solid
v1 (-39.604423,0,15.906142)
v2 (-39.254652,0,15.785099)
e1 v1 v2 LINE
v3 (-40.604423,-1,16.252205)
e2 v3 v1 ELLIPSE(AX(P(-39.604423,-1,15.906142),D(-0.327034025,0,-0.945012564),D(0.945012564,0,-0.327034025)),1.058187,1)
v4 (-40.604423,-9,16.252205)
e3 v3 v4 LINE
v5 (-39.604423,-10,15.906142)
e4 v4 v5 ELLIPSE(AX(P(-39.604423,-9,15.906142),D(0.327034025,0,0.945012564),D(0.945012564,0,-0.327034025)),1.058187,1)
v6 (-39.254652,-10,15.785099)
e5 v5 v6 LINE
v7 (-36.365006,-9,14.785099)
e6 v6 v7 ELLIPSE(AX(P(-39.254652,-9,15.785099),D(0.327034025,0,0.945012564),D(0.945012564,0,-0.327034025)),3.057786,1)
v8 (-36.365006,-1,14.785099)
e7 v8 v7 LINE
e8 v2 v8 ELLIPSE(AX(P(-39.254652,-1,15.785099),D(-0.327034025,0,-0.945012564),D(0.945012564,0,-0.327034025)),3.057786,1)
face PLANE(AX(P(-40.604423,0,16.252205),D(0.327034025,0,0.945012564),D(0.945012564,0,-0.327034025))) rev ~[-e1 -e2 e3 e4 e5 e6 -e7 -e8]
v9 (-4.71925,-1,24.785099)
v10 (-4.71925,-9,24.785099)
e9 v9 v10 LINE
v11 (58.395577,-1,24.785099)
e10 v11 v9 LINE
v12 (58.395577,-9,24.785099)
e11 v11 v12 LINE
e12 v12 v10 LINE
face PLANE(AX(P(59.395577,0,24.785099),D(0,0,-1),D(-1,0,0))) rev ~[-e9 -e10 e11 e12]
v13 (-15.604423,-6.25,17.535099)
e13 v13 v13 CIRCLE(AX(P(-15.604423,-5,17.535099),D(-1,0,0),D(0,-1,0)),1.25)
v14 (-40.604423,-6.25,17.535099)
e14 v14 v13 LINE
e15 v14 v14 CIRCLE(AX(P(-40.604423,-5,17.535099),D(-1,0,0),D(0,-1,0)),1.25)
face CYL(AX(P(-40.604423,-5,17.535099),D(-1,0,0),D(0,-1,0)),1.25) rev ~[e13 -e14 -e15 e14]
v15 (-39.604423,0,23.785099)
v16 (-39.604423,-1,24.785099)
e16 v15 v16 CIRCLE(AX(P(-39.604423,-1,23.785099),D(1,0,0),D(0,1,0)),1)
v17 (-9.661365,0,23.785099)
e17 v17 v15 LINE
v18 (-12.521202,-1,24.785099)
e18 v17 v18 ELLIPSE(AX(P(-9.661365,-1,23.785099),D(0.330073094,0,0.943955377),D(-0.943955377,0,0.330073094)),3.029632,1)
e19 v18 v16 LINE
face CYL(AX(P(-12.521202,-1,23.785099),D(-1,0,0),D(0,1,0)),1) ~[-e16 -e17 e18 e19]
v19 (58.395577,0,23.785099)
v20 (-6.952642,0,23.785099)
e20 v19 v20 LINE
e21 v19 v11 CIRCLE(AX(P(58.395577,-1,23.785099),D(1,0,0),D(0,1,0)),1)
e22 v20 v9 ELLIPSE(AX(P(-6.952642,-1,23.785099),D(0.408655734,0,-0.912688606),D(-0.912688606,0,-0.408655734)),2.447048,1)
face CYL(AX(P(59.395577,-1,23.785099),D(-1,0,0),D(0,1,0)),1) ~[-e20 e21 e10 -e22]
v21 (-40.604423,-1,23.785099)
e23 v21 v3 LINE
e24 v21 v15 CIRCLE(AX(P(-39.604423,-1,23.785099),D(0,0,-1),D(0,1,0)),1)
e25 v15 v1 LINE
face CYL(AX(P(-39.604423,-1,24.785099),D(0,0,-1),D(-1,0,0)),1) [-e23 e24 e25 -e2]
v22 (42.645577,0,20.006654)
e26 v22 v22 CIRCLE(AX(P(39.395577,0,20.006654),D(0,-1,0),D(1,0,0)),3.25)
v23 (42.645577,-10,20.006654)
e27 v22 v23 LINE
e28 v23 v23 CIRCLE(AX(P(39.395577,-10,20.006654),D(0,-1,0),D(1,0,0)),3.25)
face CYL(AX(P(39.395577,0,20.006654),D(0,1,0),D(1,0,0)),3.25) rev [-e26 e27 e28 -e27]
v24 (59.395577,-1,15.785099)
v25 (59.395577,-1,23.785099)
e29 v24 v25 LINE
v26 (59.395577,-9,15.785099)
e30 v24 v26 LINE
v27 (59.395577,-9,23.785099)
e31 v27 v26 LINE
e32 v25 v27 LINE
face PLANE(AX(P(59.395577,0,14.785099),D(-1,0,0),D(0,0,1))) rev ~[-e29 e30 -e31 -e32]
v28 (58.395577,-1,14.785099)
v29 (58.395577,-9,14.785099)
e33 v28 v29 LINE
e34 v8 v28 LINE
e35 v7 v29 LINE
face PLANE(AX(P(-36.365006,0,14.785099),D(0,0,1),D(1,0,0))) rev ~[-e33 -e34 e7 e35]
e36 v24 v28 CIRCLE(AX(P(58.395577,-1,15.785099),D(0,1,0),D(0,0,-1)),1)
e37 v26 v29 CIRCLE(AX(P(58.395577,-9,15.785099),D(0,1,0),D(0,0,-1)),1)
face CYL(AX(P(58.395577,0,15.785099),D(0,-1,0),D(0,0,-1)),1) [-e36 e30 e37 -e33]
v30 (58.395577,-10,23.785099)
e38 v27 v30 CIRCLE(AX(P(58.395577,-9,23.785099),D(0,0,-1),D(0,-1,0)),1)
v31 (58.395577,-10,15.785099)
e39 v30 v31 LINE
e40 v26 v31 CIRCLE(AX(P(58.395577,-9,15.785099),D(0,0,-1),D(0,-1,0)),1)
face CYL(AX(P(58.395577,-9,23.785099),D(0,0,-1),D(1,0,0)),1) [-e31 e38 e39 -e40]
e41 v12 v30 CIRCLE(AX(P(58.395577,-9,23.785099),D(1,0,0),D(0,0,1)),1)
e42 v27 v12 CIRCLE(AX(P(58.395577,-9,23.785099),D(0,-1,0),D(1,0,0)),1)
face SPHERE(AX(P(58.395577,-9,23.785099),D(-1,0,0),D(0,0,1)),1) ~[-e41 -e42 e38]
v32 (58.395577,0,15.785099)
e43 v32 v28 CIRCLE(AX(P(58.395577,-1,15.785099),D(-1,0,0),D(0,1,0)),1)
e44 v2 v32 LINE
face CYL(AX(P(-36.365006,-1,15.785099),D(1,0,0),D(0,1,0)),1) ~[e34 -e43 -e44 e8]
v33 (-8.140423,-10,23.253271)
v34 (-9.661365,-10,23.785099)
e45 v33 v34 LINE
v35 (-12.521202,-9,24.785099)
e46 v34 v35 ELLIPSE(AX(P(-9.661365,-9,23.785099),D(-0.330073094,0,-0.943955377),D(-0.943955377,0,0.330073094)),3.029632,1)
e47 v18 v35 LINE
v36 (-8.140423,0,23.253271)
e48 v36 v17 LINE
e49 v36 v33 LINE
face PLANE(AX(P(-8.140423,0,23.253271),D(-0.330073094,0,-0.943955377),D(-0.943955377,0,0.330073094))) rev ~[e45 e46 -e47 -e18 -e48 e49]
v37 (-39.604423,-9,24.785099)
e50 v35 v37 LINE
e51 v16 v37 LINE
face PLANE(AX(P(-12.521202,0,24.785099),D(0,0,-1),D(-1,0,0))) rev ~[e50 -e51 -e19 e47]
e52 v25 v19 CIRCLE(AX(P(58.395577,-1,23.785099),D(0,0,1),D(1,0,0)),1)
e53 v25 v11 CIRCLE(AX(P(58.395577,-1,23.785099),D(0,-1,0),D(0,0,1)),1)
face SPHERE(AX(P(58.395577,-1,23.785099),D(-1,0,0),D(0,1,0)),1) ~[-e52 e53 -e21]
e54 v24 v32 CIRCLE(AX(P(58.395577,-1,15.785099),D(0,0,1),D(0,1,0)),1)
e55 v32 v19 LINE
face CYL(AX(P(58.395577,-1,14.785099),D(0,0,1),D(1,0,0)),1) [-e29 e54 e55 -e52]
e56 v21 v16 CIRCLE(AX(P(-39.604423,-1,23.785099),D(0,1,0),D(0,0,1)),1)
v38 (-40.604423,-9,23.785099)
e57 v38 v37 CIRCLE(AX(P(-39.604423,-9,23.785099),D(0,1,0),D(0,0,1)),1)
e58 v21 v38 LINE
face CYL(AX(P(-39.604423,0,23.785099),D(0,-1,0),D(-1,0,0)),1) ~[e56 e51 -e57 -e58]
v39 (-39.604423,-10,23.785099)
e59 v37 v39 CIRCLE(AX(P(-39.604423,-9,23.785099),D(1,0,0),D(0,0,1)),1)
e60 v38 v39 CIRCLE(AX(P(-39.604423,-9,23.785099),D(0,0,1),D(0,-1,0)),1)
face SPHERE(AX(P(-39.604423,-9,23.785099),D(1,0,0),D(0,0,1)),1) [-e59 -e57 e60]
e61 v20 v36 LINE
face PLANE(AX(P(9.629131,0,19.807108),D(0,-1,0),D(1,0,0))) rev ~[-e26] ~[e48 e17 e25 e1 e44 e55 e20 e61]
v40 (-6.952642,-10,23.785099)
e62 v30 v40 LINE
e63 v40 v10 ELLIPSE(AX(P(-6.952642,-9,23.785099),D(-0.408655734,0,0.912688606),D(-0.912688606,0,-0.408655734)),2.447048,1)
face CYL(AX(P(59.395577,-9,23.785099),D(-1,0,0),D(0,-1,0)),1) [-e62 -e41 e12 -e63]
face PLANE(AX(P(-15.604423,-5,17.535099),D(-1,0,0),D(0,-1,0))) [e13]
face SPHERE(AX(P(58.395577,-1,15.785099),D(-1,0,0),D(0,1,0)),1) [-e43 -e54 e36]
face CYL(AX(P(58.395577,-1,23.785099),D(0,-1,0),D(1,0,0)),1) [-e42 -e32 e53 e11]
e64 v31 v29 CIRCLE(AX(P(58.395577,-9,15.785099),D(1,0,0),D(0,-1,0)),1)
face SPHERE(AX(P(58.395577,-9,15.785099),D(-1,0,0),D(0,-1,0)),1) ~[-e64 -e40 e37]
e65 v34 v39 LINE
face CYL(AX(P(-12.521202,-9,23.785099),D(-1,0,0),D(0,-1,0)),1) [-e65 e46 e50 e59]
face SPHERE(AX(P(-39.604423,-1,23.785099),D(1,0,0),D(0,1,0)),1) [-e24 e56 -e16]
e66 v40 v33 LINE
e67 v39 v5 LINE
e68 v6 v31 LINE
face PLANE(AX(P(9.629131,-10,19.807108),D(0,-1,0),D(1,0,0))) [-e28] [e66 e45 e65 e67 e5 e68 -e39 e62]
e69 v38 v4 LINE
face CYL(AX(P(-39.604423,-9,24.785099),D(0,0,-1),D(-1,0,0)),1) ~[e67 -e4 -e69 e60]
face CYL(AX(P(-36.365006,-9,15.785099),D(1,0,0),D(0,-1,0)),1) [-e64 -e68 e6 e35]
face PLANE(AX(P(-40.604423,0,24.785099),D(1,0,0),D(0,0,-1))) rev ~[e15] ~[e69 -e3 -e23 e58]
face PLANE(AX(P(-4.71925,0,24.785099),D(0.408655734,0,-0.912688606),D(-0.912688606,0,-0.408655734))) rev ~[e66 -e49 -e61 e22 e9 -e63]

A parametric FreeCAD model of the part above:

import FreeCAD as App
import Part
import Sketcher
from FreeCAD import Vector
Q = App.Units.Quantity


def edges_at(feature, points):
    """Names of the edges that pass closest to the given points."""
    edges = feature.Shape.Edges
    near = lambda p: min(range(len(edges)), key=lambda i: edges[i].distToShape(Part.Vertex(*p))[0])
    return sorted({f"Edge{near(p) + 1}" for p in points})

doc = App.newDocument("Part")
body = doc.addObject("PartDesign::Body", "Body")

# Sketch on XZ plane
sketch1 = body.newObject("Sketcher::SketchObject", "Sketch")
sketch1.AttachmentSupport = (doc.getObject("XZ_Plane"), [""])
sketch1.MapMode = "FlatFace"
sketch1.addGeometry([
    Part.LineSegment(Vector(-40.6, 16.3, 0), Vector(-36.4, 14.8, 0)),  # 0
    Part.LineSegment(Vector(-36.4, 14.8, 0), Vector(59.4, 14.8, 0)),  # 1
    Part.LineSegment(Vector(59.4, 14.8, 0), Vector(59.4, 24.8, 0)),  # 2
    Part.LineSegment(Vector(59.4, 24.8, 0), Vector(-4.7, 24.8, 0)),  # 3
    Part.LineSegment(Vector(-4.7, 24.8, 0), Vector(-8.1, 23.3, 0)),  # 4
    Part.LineSegment(Vector(-8.1, 23.3, 0), Vector(-12.5, 24.8, 0)),  # 5
    Part.LineSegment(Vector(-12.5, 24.8, 0), Vector(-40.6, 24.8, 0)),  # 6
    Part.LineSegment(Vector(-40.6, 24.8, 0), Vector(-40.6, 16.3, 0)),  # 7
    Part.Circle(Vector(39.4, 20, 0), Vector(0, 0, 1), 3.2),  # 8
], False)
sketch1.addConstraint([
    Sketcher.Constraint("Coincident", 0, 2, 1, 1),
    Sketcher.Constraint("Coincident", 1, 2, 2, 1),
    Sketcher.Constraint("Coincident", 2, 2, 3, 1),
    Sketcher.Constraint("Coincident", 3, 2, 4, 1),
    Sketcher.Constraint("Coincident", 4, 2, 5, 1),
    Sketcher.Constraint("Coincident", 5, 2, 6, 1),
    Sketcher.Constraint("Coincident", 6, 2, 7, 1),
    Sketcher.Constraint("Coincident", 7, 2, 0, 1),
    Sketcher.Constraint("Horizontal", 1),
    Sketcher.Constraint("Vertical", 2),
    Sketcher.Constraint("Horizontal", 3),
    Sketcher.Constraint("Horizontal", 6),
    Sketcher.Constraint("Vertical", 7),
    Sketcher.Constraint("Horizontal", 3, 2, 5, 2),
    Sketcher.Constraint("Diameter", 8, Q("6.5 mm")),
    Sketcher.Constraint("DistanceY", 2, 1, 2, 2, Q("10 mm")),
    Sketcher.Constraint("DistanceX", 8, 3, 1, 2, Q("20 mm")),
    Sketcher.Constraint("DistanceX", 6, 2, 8, 3, Q("80 mm")),
    Sketcher.Constraint("DistanceX", 4, 2, 8, 3, Q("47.536 mm")),
    Sketcher.Constraint("DistanceX", 6, 2, 6, 1, Q("28.083221 mm")),
    Sketcher.Constraint("DistanceY", -1, 1, 0, 2, Q("14.785099 mm")),
    Sketcher.Constraint("DistanceX", 1, 1, 1, 2, Q("95.760583 mm")),
    Sketcher.Constraint("DistanceX", 3, 2, 3, 1, Q("64.114827 mm")),
    Sketcher.Constraint("DistanceY", 7, 2, 7, 1, Q("8.532894 mm")),
    Sketcher.Constraint("DistanceX", 3, 2, -1, 1, Q("4.71925 mm")),
    Sketcher.Constraint("DistanceY", -1, 1, 4, 2, Q("23.253271 mm")),
    Sketcher.Constraint("DistanceY", -1, 1, 8, 3, Q("20.006654 mm")),
])
pad1 = body.newObject("PartDesign::Pad", "Pad")
pad1.Profile = sketch1
pad1.Length = 10

# Sketch on YZ plane
sketch2 = body.newObject("Sketcher::SketchObject", "Sketch001")
sketch2.AttachmentSupport = (doc.getObject("YZ_Plane"), [""])
sketch2.MapMode = "FlatFace"
sketch2.AttachmentOffset = App.Placement(Vector(0, 0, -40.604423), App.Rotation())
sketch2.addGeometry(Part.Circle(Vector(-5, 17.5, 0), Vector(0, 0, 1), 1.2), False)
sketch2.addConstraint([
    Sketcher.Constraint("Diameter", 0, Q("2.5 mm")),
    Sketcher.Constraint("DistanceX", 0, 3, -1, 1, Q("5 mm")),
    Sketcher.Constraint("DistanceY", -1, 1, 0, 3, Q("17.535099 mm")),
])
pocket1 = body.newObject("PartDesign::Pocket", "Pocket")
pocket1.Profile = sketch2
pocket1.Length = 25
pocket1.Reversed = True
doc.recompute()

fillet = body.newObject("PartDesign::Fillet", "Fillet")
fillet.Base = (pocket1, edges_at(pocket1, [
    (-26.563, -10, 24.785),
    (27.338, -10, 24.785),
    (27.338, 0, 24.785),
    (-26.563, 0, 24.785),
    (-40.604, 0, 20.519),
    (-40.604, -5, 24.785),
    (-40.604, -10, 20.519),
]))
fillet.Radius = 1
doc.recompute()

fillet2 = body.newObject("PartDesign::Fillet", "Fillet001")
fillet2.Base = (fillet, edges_at(fillet, [
    (11.515, -10, 14.785),
    (11.515, 0, 14.785),
    (59.396, -5, 24.785),
    (59.396, -0.293, 24.492),
    (59.396, -9.707, 24.492),
    (59.396, 0, 19.285),
    (59.396, -10, 19.285),
    (59.396, -5, 14.785),
]))
fillet2.Radius = 1

doc.recompute()
